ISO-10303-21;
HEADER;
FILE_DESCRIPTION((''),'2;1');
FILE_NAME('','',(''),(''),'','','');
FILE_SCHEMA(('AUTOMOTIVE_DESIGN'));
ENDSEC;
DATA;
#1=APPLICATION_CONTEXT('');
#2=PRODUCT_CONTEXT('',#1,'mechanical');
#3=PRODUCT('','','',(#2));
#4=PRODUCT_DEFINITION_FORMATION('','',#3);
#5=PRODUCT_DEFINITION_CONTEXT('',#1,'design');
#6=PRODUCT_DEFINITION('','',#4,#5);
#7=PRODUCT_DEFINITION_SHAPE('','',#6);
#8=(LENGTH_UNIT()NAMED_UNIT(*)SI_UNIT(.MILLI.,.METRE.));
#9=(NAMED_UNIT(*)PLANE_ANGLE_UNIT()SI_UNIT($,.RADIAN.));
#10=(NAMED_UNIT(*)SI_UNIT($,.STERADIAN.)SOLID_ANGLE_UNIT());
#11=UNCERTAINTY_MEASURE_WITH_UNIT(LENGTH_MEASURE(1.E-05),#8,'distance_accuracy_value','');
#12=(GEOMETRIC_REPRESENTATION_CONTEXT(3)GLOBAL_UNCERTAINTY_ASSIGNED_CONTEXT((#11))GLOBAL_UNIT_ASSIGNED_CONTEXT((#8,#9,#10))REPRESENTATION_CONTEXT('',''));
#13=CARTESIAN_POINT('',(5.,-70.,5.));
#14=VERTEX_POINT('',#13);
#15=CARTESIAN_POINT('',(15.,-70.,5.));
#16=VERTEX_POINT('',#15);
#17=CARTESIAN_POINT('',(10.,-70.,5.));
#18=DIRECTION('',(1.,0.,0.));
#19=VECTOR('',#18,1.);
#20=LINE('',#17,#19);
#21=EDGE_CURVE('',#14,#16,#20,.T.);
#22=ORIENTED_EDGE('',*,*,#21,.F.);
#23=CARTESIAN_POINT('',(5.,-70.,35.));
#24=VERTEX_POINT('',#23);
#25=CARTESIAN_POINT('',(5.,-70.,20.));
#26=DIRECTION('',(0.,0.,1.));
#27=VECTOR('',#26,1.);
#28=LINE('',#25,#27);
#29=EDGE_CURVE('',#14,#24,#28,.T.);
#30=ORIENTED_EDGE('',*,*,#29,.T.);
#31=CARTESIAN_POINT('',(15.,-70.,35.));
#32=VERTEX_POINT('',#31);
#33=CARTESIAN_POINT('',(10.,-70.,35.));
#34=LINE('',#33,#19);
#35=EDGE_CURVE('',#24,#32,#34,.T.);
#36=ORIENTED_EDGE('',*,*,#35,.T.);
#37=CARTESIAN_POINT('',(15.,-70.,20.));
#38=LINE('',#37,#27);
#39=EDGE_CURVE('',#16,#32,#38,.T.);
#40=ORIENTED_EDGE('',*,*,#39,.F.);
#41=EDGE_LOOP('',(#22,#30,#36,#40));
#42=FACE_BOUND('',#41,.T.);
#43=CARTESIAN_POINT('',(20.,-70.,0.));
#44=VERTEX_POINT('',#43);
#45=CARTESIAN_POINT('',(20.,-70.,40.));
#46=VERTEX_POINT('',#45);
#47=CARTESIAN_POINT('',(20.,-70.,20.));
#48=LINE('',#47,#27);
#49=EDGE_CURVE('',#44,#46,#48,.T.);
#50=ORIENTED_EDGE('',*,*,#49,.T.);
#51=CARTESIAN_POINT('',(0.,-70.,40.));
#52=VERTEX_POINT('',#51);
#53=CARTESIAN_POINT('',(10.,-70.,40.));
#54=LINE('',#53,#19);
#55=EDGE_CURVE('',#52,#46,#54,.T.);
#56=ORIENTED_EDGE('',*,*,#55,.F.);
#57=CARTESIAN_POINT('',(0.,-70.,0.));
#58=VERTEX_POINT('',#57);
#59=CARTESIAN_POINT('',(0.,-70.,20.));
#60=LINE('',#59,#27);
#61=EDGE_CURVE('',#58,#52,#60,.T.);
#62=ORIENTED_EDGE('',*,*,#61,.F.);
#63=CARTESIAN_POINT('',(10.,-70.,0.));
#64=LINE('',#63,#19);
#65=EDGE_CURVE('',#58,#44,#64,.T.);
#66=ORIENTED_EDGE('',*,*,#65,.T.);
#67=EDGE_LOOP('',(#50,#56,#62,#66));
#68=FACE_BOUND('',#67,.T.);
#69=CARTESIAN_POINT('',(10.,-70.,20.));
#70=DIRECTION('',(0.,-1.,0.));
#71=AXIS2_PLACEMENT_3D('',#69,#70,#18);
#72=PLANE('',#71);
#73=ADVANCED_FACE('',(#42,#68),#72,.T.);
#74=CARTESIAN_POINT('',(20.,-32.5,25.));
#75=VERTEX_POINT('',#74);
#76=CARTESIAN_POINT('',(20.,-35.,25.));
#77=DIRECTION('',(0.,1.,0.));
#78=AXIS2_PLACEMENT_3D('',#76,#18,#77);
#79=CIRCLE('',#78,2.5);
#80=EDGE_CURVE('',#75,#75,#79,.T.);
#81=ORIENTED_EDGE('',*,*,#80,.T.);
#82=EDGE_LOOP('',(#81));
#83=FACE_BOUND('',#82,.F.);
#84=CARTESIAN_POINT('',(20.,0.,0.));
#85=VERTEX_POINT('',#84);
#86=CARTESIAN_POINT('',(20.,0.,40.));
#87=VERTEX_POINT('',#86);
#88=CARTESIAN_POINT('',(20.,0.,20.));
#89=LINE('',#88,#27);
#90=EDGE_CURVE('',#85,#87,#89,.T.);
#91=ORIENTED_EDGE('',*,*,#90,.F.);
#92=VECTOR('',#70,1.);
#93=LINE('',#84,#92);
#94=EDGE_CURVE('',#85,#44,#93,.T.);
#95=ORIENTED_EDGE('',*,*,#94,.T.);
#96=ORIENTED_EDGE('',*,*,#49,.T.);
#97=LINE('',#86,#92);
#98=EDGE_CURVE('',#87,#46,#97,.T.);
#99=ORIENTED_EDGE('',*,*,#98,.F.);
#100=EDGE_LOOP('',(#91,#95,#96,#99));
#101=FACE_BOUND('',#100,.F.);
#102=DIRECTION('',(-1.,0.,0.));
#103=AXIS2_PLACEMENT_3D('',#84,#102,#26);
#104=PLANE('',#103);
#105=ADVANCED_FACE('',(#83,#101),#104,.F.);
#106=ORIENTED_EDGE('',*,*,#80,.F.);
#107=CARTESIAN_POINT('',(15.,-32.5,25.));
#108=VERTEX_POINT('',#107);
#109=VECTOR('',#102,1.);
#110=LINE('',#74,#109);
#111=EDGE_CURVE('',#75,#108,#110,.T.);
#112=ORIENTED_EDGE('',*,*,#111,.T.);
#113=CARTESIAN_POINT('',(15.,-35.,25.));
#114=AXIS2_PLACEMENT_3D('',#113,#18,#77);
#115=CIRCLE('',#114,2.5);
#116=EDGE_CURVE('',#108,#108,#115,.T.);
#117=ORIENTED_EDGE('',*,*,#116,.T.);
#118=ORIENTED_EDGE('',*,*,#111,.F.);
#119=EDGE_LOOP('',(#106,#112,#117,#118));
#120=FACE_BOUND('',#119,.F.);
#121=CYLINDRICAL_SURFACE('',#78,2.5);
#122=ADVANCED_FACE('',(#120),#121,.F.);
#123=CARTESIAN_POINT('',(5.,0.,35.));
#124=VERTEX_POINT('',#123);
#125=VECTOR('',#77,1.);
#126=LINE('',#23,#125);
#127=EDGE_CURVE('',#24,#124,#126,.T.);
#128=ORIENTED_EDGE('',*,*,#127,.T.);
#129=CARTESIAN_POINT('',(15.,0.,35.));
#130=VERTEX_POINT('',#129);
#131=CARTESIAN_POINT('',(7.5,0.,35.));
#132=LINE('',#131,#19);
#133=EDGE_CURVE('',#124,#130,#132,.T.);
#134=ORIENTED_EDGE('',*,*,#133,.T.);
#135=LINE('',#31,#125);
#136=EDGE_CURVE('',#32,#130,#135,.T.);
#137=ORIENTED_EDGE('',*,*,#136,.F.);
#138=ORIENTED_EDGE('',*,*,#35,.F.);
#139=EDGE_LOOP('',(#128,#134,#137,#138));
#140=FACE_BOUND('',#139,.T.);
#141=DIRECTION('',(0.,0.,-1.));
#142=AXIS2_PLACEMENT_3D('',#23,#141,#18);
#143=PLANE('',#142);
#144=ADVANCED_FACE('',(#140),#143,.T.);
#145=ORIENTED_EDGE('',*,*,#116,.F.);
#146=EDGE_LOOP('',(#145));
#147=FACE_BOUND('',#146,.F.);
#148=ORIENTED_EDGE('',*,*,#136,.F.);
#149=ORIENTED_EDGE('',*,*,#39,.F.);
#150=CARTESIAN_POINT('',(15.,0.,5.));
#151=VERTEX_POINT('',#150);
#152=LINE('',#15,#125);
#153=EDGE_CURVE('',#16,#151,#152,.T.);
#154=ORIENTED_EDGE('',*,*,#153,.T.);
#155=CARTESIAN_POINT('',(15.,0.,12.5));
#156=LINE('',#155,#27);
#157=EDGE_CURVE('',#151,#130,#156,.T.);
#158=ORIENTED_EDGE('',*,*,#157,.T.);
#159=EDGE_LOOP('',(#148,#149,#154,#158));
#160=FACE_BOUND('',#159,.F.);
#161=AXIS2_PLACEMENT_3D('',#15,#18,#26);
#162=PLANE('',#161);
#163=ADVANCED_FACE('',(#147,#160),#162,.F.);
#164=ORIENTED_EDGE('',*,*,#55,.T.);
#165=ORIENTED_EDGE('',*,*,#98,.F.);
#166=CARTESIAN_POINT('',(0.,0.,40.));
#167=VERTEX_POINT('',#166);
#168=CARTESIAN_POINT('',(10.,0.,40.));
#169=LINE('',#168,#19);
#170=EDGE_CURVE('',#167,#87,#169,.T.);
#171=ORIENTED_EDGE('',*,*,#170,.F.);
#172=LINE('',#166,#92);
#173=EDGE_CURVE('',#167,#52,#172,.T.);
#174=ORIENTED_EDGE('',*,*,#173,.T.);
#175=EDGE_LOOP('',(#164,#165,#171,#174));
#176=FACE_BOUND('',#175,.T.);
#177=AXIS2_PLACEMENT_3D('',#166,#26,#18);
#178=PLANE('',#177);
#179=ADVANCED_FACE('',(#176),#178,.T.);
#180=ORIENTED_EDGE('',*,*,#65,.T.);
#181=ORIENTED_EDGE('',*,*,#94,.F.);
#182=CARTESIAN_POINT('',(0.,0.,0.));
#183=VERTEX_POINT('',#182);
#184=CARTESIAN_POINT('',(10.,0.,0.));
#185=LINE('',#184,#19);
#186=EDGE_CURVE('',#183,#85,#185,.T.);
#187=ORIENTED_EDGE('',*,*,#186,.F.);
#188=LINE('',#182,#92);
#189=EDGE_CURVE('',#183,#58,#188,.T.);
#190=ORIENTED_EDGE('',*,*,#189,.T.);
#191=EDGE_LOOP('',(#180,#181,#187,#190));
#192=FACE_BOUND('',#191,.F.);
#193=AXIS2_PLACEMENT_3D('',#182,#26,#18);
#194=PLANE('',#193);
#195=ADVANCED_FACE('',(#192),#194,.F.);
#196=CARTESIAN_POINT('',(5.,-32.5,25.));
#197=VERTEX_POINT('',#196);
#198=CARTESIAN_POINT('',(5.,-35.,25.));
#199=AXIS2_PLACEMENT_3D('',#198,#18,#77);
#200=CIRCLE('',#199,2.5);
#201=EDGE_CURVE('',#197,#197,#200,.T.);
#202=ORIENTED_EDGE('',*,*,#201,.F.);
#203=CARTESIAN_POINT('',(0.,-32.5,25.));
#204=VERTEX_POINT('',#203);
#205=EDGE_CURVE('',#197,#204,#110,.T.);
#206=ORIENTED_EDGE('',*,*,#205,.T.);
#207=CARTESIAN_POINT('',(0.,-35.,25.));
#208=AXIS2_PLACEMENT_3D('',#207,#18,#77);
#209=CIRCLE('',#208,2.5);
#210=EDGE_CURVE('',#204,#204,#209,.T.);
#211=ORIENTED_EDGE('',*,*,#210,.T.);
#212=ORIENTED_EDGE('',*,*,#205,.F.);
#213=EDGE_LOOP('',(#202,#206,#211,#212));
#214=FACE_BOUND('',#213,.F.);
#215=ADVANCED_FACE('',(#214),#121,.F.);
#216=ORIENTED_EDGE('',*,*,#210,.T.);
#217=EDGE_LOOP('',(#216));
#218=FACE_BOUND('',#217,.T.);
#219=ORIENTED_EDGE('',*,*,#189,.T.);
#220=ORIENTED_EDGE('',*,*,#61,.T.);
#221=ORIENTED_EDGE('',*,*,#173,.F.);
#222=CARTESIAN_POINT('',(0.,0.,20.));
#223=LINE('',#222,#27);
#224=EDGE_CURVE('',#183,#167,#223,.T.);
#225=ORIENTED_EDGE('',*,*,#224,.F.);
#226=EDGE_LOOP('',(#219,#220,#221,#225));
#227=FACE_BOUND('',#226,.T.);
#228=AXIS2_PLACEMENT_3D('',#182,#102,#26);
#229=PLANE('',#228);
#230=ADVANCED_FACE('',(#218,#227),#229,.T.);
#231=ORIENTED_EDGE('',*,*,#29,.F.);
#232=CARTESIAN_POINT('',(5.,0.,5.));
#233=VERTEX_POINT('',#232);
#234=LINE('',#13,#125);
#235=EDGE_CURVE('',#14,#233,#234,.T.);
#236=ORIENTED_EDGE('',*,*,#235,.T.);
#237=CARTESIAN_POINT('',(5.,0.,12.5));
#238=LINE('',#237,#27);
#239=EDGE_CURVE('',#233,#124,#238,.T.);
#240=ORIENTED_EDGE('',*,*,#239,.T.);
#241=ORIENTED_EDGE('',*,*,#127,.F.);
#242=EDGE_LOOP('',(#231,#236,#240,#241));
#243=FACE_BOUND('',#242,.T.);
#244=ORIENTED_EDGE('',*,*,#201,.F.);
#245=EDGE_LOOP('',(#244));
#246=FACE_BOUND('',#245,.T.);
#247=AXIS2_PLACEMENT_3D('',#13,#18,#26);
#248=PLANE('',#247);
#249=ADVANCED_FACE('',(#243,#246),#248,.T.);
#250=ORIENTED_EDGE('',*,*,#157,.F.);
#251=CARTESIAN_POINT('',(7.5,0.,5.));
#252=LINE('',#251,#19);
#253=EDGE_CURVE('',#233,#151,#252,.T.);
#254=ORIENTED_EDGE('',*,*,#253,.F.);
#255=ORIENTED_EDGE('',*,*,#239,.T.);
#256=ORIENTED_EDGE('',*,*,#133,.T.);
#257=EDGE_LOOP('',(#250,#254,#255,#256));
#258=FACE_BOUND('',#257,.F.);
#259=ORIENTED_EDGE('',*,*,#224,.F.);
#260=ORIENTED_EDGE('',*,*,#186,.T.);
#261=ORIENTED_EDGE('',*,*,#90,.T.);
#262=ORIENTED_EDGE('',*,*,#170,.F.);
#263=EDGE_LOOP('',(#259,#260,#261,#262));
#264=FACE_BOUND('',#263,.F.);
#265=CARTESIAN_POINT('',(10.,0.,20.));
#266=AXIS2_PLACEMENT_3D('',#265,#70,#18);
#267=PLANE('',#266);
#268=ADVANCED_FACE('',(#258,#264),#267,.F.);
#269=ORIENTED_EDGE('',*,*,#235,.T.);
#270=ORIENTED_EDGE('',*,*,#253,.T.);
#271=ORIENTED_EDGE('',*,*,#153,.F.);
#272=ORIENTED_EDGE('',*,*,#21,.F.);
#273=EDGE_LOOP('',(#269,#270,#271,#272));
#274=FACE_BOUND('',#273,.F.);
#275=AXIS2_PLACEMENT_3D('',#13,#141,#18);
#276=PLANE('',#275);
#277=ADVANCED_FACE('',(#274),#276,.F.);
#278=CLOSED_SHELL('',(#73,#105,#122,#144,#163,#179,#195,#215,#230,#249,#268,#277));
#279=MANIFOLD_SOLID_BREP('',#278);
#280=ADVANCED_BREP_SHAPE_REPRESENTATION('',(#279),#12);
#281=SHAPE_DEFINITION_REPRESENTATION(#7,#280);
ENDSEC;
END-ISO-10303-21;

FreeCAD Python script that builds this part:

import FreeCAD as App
import Part
import Sketcher
from FreeCAD import Vector


def add_polygon(sketch, points):
    """Adds a closed chain of lines whose ends are joined by coincident constraints."""
    first, n = sketch.GeometryCount, len(points)
    for a, b in zip(points, points[1:] + points[:1]):
        sketch.addGeometry(Part.LineSegment(App.Vector(*a, 0), App.Vector(*b, 0)), False)
    for i in range(n):
        sketch.addConstraint(Sketcher.Constraint("Coincident", first + i, 2, first + (i + 1) % n, 1))

doc = App.newDocument("Part")
params = doc.addObject("Spreadsheet::Sheet", "Params")
for row, (alias, value) in enumerate([
    ("sketch1_width", "20 mm"),
    ("sketch1_height", "40 mm"),
    ("pad1_length", "70 mm"),
    ("sketch2_diameter", "5 mm"),
    ("sketch3_width", "10 mm"),
    ("sketch3_height", "30 mm"),
], start=1):
    params.set(f"A{row}", alias)
    params.set(f"B{row}", "=" + value)
    params.setAlias(f"B{row}", alias)

body = doc.addObject("PartDesign::Body", "Body")

sketch1 = body.newObject("Sketcher::SketchObject", "Sketch")
sketch1.AttachmentSupport = (doc.getObject("XZ_Plane"), [""])
sketch1.MapMode = "FlatFace"
add_polygon(sketch1, [(0, 40), (0, 0), (20, 0), (20, 40)])
sketch1.addConstraint(Sketcher.Constraint("Vertical", 0))
sketch1.addConstraint(Sketcher.Constraint("Horizontal", 1))
sketch1.addConstraint(Sketcher.Constraint("Vertical", 2))
sketch1.addConstraint(Sketcher.Constraint("Horizontal", 3))
sketch1.addConstraint(Sketcher.Constraint("Coincident", 0, 2, -1, 1))
sketch1.addConstraint(Sketcher.Constraint("DistanceX", 1, 1, 1, 2, 20.0))
sketch1.addConstraint(Sketcher.Constraint("DistanceY", 0, 2, 0, 1, 40.0))
sketch1.setExpression("Constraints[9]", "Params.sketch1_width")
sketch1.setExpression("Constraints[10]", "Params.sketch1_height")
pad1 = body.newObject("PartDesign::Pad", "Pad")
pad1.Profile = sketch1
pad1.setExpression("Length", "Params.pad1_length")

sketch2 = body.newObject("Sketcher::SketchObject", "Sketch001")
sketch2.AttachmentSupport = (doc.getObject("YZ_Plane"), [""])
sketch2.MapMode = "FlatFace"
sketch2.AttachmentOffset = App.Placement(Vector(0, 0, 20), App.Rotation())
sketch2.addGeometry(Part.Circle(Vector(-35, 25, 0), Vector(0, 0, 1), 2.5), False)
sketch2.addConstraint(Sketcher.Constraint("Diameter", 0, 5.0))
sketch2.addConstraint(Sketcher.Constraint("DistanceX", 0, 3, -1, 1, 35.0))
sketch2.addConstraint(Sketcher.Constraint("DistanceY", -1, 1, 0, 3, 25.0))
sketch2.setExpression("Constraints[0]", "Params.sketch2_diameter")
pocket1 = body.newObject("PartDesign::Pocket", "Pocket")
pocket1.Profile = sketch2
pocket1.Type = "ThroughAll"

sketch3 = body.newObject("Sketcher::SketchObject", "Sketch002")
sketch3.AttachmentSupport = (doc.getObject("XZ_Plane"), [""])
sketch3.MapMode = "FlatFace"
sketch3.AttachmentOffset = App.Placement(Vector(0, 0, 70), App.Rotation())
add_polygon(sketch3, [(5, 35), (5, 5), (15, 5), (15, 35)])
sketch3.addConstraint(Sketcher.Constraint("Vertical", 0))
sketch3.addConstraint(Sketcher.Constraint("Horizontal", 1))
sketch3.addConstraint(Sketcher.Constraint("Vertical", 2))
sketch3.addConstraint(Sketcher.Constraint("Horizontal", 3))
sketch3.addConstraint(Sketcher.Constraint("DistanceX", 1, 1, 1, 2, 10.0))
sketch3.addConstraint(Sketcher.Constraint("DistanceY", 0, 2, 0, 1, 30.0))
sketch3.addConstraint(Sketcher.Constraint("DistanceX", -1, 1, 0, 2, 5.0))
sketch3.addConstraint(Sketcher.Constraint("DistanceY", -1, 1, 0, 2, 5.0))
sketch3.setExpression("Constraints[8]", "Params.sketch3_width")
sketch3.setExpression("Constraints[9]", "Params.sketch3_height")
pocket2 = body.newObject("PartDesign::Pocket", "Pocket001")
pocket2.Profile = sketch3
pocket2.Type = "ThroughAll"

doc.recompute()
